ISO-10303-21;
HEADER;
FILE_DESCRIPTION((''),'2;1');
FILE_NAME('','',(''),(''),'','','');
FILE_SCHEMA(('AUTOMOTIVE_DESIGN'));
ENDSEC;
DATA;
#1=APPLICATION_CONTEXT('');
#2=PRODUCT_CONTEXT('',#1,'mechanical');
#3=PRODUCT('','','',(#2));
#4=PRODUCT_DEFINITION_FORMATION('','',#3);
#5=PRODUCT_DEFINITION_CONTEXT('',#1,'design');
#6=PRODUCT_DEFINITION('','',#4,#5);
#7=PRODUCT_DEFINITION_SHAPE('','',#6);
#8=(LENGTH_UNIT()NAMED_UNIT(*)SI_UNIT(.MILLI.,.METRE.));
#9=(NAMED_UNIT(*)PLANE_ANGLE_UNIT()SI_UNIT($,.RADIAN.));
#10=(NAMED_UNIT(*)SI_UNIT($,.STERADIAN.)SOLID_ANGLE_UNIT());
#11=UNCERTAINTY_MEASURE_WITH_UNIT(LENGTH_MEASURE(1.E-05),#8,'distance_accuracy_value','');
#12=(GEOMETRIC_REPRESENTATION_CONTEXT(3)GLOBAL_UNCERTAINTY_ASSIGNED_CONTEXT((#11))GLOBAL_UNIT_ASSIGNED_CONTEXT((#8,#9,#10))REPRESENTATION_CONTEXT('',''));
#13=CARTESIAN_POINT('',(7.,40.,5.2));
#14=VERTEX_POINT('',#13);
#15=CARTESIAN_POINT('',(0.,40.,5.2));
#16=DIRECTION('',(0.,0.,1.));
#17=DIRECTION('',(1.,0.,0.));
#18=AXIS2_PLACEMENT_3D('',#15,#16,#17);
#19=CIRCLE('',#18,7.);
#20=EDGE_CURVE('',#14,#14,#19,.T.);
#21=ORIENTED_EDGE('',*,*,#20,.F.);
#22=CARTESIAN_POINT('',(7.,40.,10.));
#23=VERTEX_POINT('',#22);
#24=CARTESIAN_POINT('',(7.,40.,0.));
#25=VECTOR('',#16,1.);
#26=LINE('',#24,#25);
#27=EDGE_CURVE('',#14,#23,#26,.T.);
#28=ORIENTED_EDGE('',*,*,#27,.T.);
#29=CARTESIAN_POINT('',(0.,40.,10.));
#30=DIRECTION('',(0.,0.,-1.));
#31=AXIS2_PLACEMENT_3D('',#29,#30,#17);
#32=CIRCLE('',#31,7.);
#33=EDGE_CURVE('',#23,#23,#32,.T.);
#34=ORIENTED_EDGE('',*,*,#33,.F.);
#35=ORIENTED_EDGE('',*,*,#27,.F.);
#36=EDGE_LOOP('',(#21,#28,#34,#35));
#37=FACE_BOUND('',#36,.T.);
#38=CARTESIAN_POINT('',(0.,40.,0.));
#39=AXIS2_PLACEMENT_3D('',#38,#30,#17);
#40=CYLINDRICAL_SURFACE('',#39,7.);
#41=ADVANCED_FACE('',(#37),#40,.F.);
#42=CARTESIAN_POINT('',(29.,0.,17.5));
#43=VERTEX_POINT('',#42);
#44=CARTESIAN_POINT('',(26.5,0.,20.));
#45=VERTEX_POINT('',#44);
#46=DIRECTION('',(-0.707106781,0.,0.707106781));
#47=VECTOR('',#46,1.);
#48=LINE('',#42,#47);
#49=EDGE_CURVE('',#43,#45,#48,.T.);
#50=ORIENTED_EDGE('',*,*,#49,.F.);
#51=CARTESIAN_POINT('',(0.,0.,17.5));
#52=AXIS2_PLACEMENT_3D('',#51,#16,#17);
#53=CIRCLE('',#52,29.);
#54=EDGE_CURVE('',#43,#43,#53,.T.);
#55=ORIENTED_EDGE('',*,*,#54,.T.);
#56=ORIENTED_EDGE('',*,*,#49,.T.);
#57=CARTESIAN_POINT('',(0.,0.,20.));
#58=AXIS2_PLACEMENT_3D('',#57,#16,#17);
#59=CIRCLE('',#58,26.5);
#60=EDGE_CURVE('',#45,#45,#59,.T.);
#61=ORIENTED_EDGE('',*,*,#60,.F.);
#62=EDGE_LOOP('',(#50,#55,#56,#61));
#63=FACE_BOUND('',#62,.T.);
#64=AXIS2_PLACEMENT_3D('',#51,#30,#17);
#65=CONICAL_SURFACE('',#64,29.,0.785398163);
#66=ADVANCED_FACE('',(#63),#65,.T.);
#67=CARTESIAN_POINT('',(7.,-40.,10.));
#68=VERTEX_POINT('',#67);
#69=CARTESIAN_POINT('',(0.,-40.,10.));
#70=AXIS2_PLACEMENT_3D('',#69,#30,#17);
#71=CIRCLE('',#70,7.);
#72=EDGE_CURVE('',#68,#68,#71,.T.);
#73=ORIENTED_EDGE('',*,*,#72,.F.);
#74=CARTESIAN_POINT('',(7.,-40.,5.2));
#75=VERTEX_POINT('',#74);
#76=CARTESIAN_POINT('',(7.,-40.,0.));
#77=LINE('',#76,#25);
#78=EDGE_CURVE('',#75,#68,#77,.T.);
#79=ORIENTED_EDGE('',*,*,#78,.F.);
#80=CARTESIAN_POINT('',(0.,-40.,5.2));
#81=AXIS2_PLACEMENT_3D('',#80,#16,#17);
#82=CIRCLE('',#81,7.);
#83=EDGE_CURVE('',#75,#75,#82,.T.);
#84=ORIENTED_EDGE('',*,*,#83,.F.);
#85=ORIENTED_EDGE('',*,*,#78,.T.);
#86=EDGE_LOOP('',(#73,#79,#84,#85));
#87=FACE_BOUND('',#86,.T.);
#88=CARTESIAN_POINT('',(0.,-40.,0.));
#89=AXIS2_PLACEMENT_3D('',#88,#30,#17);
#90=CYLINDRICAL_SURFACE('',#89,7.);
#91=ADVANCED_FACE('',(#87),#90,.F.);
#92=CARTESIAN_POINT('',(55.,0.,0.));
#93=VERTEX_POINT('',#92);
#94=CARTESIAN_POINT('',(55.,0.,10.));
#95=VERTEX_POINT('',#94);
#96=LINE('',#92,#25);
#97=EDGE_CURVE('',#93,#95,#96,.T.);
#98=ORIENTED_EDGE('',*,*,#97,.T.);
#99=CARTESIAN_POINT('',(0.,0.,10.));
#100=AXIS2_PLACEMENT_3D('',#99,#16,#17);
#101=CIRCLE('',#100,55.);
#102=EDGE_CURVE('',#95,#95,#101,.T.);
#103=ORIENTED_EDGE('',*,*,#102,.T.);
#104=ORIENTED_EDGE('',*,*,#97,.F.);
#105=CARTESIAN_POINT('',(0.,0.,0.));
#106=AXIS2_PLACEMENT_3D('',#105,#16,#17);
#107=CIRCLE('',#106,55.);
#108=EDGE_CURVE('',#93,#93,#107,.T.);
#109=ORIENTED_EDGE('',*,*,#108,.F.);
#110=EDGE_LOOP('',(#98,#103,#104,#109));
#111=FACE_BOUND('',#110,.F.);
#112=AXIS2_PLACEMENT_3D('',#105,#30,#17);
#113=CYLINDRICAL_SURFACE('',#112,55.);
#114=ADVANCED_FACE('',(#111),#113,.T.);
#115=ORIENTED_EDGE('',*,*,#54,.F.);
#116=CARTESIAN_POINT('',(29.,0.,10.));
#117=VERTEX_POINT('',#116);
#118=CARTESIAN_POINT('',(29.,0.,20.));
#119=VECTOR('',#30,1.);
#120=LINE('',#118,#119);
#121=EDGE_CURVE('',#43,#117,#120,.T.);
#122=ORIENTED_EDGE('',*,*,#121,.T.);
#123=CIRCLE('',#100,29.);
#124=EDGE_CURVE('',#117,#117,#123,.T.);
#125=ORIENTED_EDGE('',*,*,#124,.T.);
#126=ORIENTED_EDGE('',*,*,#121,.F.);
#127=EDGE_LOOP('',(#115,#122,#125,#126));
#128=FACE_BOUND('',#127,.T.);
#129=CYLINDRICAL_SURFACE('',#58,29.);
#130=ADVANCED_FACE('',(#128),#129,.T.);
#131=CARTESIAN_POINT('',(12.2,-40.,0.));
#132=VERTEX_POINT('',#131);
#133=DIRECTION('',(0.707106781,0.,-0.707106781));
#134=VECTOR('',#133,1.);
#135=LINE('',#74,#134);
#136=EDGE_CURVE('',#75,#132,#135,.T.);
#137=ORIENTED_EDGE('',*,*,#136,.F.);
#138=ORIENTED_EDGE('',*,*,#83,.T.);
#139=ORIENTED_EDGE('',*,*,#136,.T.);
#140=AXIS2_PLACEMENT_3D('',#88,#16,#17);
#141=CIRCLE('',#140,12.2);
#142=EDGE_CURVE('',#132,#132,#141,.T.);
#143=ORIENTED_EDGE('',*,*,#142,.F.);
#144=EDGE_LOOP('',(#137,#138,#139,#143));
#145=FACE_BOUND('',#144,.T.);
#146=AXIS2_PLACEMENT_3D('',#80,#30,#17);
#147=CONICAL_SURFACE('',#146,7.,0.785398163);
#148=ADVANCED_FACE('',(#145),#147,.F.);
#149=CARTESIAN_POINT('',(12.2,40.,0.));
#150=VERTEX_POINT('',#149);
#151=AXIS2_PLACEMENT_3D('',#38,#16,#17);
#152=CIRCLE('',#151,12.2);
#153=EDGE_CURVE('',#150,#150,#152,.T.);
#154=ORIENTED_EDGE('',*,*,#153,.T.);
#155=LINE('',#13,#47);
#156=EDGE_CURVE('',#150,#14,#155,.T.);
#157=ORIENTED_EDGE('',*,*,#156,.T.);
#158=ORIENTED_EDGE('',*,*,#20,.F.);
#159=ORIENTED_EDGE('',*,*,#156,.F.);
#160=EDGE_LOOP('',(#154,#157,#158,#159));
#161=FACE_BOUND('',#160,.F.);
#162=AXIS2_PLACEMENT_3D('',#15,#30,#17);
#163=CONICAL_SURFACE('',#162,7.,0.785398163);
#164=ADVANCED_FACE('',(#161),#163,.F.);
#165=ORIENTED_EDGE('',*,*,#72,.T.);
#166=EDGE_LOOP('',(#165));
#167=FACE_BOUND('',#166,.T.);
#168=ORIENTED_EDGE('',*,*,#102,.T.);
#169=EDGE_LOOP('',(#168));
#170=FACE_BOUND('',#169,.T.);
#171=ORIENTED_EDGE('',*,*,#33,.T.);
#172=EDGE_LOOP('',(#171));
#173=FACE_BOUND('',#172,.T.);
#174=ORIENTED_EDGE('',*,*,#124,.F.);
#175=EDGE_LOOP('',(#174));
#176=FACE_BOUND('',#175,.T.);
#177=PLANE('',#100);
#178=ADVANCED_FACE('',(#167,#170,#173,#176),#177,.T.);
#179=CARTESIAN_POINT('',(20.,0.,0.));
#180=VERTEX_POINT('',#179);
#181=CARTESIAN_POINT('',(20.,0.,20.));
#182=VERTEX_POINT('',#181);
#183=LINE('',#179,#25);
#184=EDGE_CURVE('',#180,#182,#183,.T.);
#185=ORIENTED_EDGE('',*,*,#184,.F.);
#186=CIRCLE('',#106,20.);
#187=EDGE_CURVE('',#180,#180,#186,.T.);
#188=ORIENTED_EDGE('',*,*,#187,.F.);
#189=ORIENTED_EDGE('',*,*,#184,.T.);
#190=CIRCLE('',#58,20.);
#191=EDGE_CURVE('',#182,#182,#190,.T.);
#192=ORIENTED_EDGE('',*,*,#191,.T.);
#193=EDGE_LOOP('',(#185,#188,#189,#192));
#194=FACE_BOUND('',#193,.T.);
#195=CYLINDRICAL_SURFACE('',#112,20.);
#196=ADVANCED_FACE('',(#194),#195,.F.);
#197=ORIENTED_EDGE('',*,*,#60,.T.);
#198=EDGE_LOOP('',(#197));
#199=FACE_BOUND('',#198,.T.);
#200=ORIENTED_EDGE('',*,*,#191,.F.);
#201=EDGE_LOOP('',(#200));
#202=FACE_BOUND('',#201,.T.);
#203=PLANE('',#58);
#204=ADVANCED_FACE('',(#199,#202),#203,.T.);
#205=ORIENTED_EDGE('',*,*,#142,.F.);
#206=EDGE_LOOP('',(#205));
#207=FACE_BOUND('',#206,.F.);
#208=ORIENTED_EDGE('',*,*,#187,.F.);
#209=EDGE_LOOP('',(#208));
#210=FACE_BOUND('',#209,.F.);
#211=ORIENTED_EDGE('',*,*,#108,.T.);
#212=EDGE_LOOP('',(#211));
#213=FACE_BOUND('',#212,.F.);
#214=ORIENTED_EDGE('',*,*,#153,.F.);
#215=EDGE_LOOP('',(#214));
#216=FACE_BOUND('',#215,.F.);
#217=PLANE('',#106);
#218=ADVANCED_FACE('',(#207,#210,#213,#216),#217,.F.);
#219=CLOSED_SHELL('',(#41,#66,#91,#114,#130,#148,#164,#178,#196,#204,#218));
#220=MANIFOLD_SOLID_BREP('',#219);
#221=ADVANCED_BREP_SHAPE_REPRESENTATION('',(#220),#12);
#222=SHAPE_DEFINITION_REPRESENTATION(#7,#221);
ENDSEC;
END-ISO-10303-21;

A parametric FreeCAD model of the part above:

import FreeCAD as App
import Part
import Sketcher

V = App.Vector


def edges_at(feature, points):
    """Names of the edges that pass closest to the given points."""
    edges = feature.Shape.Edges
    near = lambda p: min(range(len(edges)), key=lambda i: edges[i].distToShape(Part.Vertex(*p))[0])
    return sorted({f"Edge{near(p) + 1}" for p in points})

doc = App.newDocument("Part")
body = doc.addObject("PartDesign::Body", "Body")

# Sketch on XY plane
sketch1 = doc.addObject("Sketcher::SketchObject", "Sketch")
body.addObject(sketch1)
sketch1.AttachmentSupport = (doc.XY_Plane, [""])
sketch1.MapMode = "FlatFace"
sketch1.addGeometry(Part.Circle(V(0, 0, 0), V(0, 0, 1), 55), False)
sketch1.addGeometry(Part.Circle(V(0, -40, 0), V(0, 0, 1), 7), False)
sketch1.addGeometry(Part.Circle(V(0, 0, 0), V(0, 0, 1), 20), False)
sketch1.addGeometry(Part.Circle(V(0, 40, 0), V(0, 0, 1), 7), False)
sketch1.addConstraint(Sketcher.Constraint("Coincident", 0, 3, -1, 1))
sketch1.addConstraint(Sketcher.Constraint("Coincident", 2, 3, -1, 1))
sketch1.addConstraint(Sketcher.Constraint("Equal", 1, 3))
sketch1.addConstraint(Sketcher.Constraint("Symmetric", 1, 3, 3, 3, -1, 1))
sketch1.addConstraint(Sketcher.Constraint("PointOnObject", 1, 3, -2))
sketch1.addConstraint(Sketcher.Constraint("Diameter", 0, 110.0))
sketch1.addConstraint(Sketcher.Constraint("Diameter", 1, 14.0))
sketch1.addConstraint(Sketcher.Constraint("Diameter", 2, 40.0))
sketch1.addConstraint(Sketcher.Constraint("DistanceY", 1, 3, -1, 1, 40.0))
pad1 = doc.addObject("PartDesign::Pad", "Pad")
body.addObject(pad1)
pad1.Profile = sketch1
pad1.Length = 20

# Sketch on XY plane
sketch2 = doc.addObject("Sketcher::SketchObject", "Sketch001")
body.addObject(sketch2)
sketch2.AttachmentSupport = (doc.XY_Plane, [""])
sketch2.MapMode = "FlatFace"
sketch2.AttachmentOffset = App.Placement(V(0, 0, 20), App.Rotation())
sketch2.addGeometry(Part.Circle(V(0, 0, 0), V(0, 0, 1), 55), False)
sketch2.addGeometry(Part.Circle(V(0, 0, 0), V(0, 0, 1), 29), False)
sketch2.addConstraint(Sketcher.Constraint("Coincident", 0, 3, -1, 1))
sketch2.addConstraint(Sketcher.Constraint("Coincident", 1, 3, -1, 1))
sketch2.addConstraint(Sketcher.Constraint("Diameter", 1, 58.0))
sketch2.addConstraint(Sketcher.Constraint("Diameter", 0, 110.0))
pocket1 = doc.addObject("PartDesign::Pocket", "Pocket")
body.addObject(pocket1)
pocket1.Profile = sketch2
pocket1.Length = 10
doc.recompute()

chamfer = doc.addObject("PartDesign::Chamfer", "Chamfer")
body.addObject(chamfer)
chamfer.Base = (pocket1, edges_at(pocket1, [(-29, 0, 20)]))
chamfer.Size = 2.5
doc.recompute()

chamfer2 = doc.addObject("PartDesign::Chamfer", "Chamfer001")
body.addObject(chamfer2)
chamfer2.Base = (chamfer, edges_at(chamfer, [(-7, -40, 0)]))
chamfer2.Size = 5.2
doc.recompute()

chamfer3 = doc.addObject("PartDesign::Chamfer", "Chamfer002")
body.addObject(chamfer3)
chamfer3.Base = (chamfer2, edges_at(chamfer2, [(-7, 40, 0)]))
chamfer3.Size = 5.2

doc.recompute()
